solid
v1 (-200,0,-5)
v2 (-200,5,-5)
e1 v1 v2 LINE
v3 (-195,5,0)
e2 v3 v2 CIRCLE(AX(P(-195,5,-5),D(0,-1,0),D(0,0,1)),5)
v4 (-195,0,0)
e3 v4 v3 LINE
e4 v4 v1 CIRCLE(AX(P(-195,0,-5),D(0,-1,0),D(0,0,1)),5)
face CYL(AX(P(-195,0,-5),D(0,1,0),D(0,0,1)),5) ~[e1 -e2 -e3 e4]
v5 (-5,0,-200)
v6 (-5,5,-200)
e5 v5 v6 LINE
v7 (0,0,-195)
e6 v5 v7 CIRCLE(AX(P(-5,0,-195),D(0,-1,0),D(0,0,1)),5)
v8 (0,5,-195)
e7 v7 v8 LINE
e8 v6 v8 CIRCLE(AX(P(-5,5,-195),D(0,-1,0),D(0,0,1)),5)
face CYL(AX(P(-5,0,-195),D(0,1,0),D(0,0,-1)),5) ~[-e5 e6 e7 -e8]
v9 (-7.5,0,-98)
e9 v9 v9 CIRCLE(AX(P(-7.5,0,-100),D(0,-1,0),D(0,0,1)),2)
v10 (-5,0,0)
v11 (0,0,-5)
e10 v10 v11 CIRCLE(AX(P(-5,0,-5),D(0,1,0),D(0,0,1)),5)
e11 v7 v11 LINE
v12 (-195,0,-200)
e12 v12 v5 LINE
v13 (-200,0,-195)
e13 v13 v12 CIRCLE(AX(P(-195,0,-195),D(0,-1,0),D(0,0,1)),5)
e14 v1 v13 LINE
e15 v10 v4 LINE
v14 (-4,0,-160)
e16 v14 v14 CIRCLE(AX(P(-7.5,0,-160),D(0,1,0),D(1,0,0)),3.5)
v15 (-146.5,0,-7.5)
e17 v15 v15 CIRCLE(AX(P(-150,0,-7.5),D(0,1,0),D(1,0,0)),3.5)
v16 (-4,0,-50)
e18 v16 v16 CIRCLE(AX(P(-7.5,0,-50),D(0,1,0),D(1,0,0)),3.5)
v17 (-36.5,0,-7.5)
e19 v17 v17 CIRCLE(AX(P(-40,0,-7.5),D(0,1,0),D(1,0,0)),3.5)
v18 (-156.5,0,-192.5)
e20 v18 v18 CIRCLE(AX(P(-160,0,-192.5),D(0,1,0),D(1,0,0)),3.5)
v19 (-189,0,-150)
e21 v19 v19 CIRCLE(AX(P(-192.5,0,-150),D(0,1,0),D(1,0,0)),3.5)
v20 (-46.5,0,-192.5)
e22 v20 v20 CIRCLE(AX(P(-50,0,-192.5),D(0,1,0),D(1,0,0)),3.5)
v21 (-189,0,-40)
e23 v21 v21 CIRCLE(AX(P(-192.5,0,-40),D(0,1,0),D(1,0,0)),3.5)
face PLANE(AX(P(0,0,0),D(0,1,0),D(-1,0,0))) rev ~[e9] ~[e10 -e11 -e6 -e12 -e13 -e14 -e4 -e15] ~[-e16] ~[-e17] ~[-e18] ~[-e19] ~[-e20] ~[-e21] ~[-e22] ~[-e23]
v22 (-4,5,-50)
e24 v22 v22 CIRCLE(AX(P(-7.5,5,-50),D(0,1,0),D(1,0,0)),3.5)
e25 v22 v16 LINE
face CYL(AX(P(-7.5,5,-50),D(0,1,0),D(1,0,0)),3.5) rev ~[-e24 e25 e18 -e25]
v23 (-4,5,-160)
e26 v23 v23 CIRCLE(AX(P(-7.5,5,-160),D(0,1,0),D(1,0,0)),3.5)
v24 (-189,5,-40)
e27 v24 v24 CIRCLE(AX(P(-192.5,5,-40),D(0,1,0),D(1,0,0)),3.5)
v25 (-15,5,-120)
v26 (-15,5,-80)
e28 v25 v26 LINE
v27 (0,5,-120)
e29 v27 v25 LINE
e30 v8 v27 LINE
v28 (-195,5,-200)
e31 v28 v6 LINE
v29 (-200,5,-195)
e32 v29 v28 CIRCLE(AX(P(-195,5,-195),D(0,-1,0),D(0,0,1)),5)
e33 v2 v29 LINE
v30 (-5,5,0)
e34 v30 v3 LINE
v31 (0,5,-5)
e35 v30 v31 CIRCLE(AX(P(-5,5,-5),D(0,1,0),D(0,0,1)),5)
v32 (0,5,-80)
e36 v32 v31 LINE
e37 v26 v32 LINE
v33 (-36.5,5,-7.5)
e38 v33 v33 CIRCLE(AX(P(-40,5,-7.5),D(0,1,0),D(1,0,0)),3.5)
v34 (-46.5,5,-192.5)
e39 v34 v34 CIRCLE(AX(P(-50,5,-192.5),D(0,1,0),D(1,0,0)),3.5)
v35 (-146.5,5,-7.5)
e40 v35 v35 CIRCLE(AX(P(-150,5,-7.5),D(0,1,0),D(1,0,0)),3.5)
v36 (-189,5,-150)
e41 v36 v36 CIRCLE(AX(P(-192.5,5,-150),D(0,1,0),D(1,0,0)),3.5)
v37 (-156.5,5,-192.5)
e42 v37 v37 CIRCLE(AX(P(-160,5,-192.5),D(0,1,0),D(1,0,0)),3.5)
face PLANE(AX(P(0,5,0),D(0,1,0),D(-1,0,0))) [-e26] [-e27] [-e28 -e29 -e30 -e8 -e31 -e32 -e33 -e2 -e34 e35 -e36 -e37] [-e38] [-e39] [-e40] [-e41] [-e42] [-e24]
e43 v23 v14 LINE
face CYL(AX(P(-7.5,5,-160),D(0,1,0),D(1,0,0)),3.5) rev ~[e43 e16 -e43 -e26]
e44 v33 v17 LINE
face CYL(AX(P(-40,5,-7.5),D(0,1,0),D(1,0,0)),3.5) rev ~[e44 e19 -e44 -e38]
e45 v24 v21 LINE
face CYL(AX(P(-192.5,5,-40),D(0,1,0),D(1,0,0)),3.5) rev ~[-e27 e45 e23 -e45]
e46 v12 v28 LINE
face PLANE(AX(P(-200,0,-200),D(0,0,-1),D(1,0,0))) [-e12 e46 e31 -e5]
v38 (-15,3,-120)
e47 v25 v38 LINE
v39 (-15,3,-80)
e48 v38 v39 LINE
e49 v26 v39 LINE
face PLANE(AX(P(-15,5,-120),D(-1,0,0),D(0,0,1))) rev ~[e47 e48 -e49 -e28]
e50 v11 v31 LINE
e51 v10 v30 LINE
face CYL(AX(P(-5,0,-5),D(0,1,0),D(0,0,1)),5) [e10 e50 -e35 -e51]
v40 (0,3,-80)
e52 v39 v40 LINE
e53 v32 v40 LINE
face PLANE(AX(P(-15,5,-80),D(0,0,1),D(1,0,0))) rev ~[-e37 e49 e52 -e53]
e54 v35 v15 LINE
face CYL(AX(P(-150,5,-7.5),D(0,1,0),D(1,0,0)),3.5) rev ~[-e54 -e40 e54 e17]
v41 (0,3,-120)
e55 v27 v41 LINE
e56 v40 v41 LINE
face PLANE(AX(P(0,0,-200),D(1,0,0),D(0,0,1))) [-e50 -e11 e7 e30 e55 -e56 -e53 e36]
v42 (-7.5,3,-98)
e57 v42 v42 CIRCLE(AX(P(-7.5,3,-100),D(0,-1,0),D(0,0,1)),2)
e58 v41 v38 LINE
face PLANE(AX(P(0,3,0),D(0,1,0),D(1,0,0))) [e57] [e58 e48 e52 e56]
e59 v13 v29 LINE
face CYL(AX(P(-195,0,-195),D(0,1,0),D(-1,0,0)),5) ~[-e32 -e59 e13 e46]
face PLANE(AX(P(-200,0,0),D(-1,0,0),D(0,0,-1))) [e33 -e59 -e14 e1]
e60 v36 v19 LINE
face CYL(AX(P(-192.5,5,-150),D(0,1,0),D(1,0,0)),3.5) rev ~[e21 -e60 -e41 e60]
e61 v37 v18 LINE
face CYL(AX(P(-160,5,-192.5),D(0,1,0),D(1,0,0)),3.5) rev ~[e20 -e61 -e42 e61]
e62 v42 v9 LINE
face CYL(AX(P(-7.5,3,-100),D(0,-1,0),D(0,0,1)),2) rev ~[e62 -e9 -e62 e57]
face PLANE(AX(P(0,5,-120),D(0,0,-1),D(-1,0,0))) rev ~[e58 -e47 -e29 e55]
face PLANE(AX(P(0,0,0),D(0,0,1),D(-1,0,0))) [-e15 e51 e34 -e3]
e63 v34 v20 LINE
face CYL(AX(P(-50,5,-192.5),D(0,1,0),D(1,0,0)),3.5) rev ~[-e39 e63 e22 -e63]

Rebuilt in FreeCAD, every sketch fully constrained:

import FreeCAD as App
import Part
import Sketcher
Q = App.Units.Quantity


def edges_at(feature, points):
    """Names of the edges that pass closest to the given points."""
    edges = feature.Shape.Edges
    near = lambda p: min(range(len(edges)), key=lambda i: edges[i].distToShape(Part.Vertex(*p))[0])
    return sorted({f"Edge{near(p) + 1}" for p in points})

doc = App.newDocument("Part")
body = doc.addObject("PartDesign::Body", "Body")

sketch1 = doc.addObject("Sketcher::SketchObject", "Sketch")
body.addObject(sketch1)
sketch1.AttachmentSupport = (doc.XZ_Plane, [""])
sketch1.MapMode = "FlatFace"
sketch1.addGeometry([
    Part.LineSegment(App.Vector(-200, 0, 0), App.Vector(0, 0, 0)),
    Part.LineSegment(App.Vector(0, 0, 0), App.Vector(0, -200, 0)),
    Part.LineSegment(App.Vector(0, -200, 0), App.Vector(-200, -200, 0)),
    Part.LineSegment(App.Vector(-200, -200, 0), App.Vector(-200, 0, 0)),
], False)
sketch1.addConstraint([
    Sketcher.Constraint("Coincident", 0, 2, 1, 1),
    Sketcher.Constraint("Coincident", 1, 2, 2, 1),
    Sketcher.Constraint("Coincident", 2, 2, 3, 1),
    Sketcher.Constraint("Coincident", 3, 2, 0, 1),
    Sketcher.Constraint("Horizontal", 0),
    Sketcher.Constraint("Vertical", 1),
    Sketcher.Constraint("Horizontal", 2),
    Sketcher.Constraint("Vertical", 3),
    Sketcher.Constraint("Coincident", 0, 2, -1, 1),
    Sketcher.Constraint("Equal", 2, 1),
    Sketcher.Constraint("DistanceX", 0, 1, 0, 2, Q("200 mm")),
])
pad1 = doc.addObject("PartDesign::Pad", "Pad")
body.addObject(pad1)
pad1.Profile = sketch1
pad1.Length = 5
pad1.Reversed = True
doc.recompute()

fillet = doc.addObject("PartDesign::Fillet", "Fillet")
body.addObject(fillet)
fillet.Base = (pad1, edges_at(pad1, [
    (0, 2.5, 0),
    (0, 2.5, -200),
    (-200, 2.5, 0),
    (-200, 2.5, -200),
]))
fillet.Radius = 5

sketch2 = doc.addObject("Sketcher::SketchObject", "Sketch001")
body.addObject(sketch2)
sketch2.AttachmentSupport = (doc.XZ_Plane, [""])
sketch2.MapMode = "FlatFace"
sketch2.AttachmentOffset = App.Placement(App.Vector(0, 0, -5), App.Rotation())
sketch2.addGeometry([
    Part.Circle(App.Vector(-7.5, -50, 0), App.Vector(0, 0, 1), 3.5),
    Part.Circle(App.Vector(-40, -7.5, 0), App.Vector(0, 0, 1), 3.5),
    Part.Circle(App.Vector(-150, -7.5, 0), App.Vector(0, 0, 1), 3.5),
    Part.Circle(App.Vector(-192.5, -40, 0), App.Vector(0, 0, 1), 3.5),
    Part.Circle(App.Vector(-192.5, -150, 0), App.Vector(0, 0, 1), 3.5),
    Part.Circle(App.Vector(-160, -192.5, 0), App.Vector(0, 0, 1), 3.5),
    Part.Circle(App.Vector(-50, -192.5, 0), App.Vector(0, 0, 1), 3.5),
    Part.Circle(App.Vector(-7.5, -160, 0), App.Vector(0, 0, 1), 3.5),
], False)
sketch2.addConstraint([
    Sketcher.Constraint("Equal", 0, 1),
    Sketcher.Constraint("Equal", 1, 2),
    Sketcher.Constraint("Equal", 2, 3),
    Sketcher.Constraint("Equal", 3, 4),
    Sketcher.Constraint("Equal", 4, 5),
    Sketcher.Constraint("Equal", 5, 6),
    Sketcher.Constraint("Equal", 6, 7),
    Sketcher.Constraint("Horizontal", 1, 3, 2, 3),
    Sketcher.Constraint("Horizontal", 5, 3, 6, 3),
    Sketcher.Constraint("Vertical", 3, 3, 4, 3),
    Sketcher.Constraint("Vertical", 0, 3, 7, 3),
    Sketcher.Constraint("Diameter", 0, Q("7 mm")),
    Sketcher.Constraint("DistanceY", 0, 3, -1, 1, Q("50 mm")),
    Sketcher.Constraint("DistanceX", 1, 3, -1, 1, Q("40 mm")),
    Sketcher.Constraint("DistanceY", 3, 3, -1, 1, Q("40 mm")),
    Sketcher.Constraint("DistanceX", 6, 3, -1, 1, Q("50 mm")),
    Sketcher.Constraint("DistanceX", 0, 3, -1, 1, Q("7.5 mm")),
    Sketcher.Constraint("DistanceY", 1, 3, -1, 1, Q("7.5 mm")),
    Sketcher.Constraint("DistanceX", 2, 3, -1, 1, Q("150 mm")),
    Sketcher.Constraint("DistanceY", 4, 3, -1, 1, Q("150 mm")),
    Sketcher.Constraint("DistanceX", 5, 3, -1, 1, Q("160 mm")),
    Sketcher.Constraint("DistanceY", 7, 3, -1, 1, Q("160 mm")),
    Sketcher.Constraint("DistanceX", 3, 3, 0, 3, Q("185 mm")),
    Sketcher.Constraint("DistanceY", 5, 3, 2, 3, Q("185 mm")),
])
pocket1 = doc.addObject("PartDesign::Pocket", "Pocket")
body.addObject(pocket1)
pocket1.Profile = sketch2
pocket1.Type = "ThroughAll"
pocket1.Reversed = True

sketch3 = doc.addObject("Sketcher::SketchObject", "Sketch002")
body.addObject(sketch3)
sketch3.AttachmentSupport = (doc.XZ_Plane, [""])
sketch3.MapMode = "FlatFace"
sketch3.AttachmentOffset = App.Placement(App.Vector(0, 0, -5), App.Rotation())
sketch3.addGeometry([
    Part.LineSegment(App.Vector(0, -80, 0), App.Vector(0, -120, 0)),
    Part.LineSegment(App.Vector(0, -120, 0), App.Vector(-15, -120, 0)),
    Part.LineSegment(App.Vector(-15, -120, 0), App.Vector(-15, -80, 0)),
    Part.LineSegment(App.Vector(-15, -80, 0), App.Vector(0, -80, 0)),
], False)
sketch3.addConstraint([
    Sketcher.Constraint("Coincident", 0, 2, 1, 1),
    Sketcher.Constraint("Coincident", 1, 2, 2, 1),
    Sketcher.Constraint("Coincident", 2, 2, 3, 1),
    Sketcher.Constraint("Coincident", 3, 2, 0, 1),
    Sketcher.Constraint("Vertical", 0),
    Sketcher.Constraint("Horizontal", 1),
    Sketcher.Constraint("Vertical", 2),
    Sketcher.Constraint("Horizontal", 3),
    Sketcher.Constraint("PointOnObject", 0, 2, -2),
    Sketcher.Constraint("DistanceX", 1, 2, 1, 1, Q("15 mm")),
    Sketcher.Constraint("DistanceY", 2, 2, -1, 1, Q("80 mm")),
    Sketcher.Constraint("DistanceY", 0, 2, 0, 1, Q("40 mm")),
])
pocket2 = doc.addObject("PartDesign::Pocket", "Pocket001")
body.addObject(pocket2)
pocket2.Profile = sketch3
pocket2.Length = 2
pocket2.Reversed = True

sketch4 = doc.addObject("Sketcher::SketchObject", "Sketch003")
body.addObject(sketch4)
sketch4.AttachmentSupport = (doc.XZ_Plane, [""])
sketch4.MapMode = "FlatFace"
sketch4.AttachmentOffset = App.Placement(App.Vector(0, 0, -3), App.Rotation())
sketch4.addGeometry(Part.Circle(App.Vector(-7.5, -100, 0), App.Vector(0, 0, 1), 2), False)
sketch4.addConstraint([
    Sketcher.Constraint("Diameter", 0, Q("4 mm")),
    Sketcher.Constraint("DistanceY", 0, 3, -1, 1, Q("100 mm")),
    Sketcher.Constraint("DistanceX", 0, 3, -1, 1, Q("7.5 mm")),
])
doc.recompute()
hole = doc.addObject("PartDesign::Hole", "Hole")
body.addObject(hole)
hole.Profile = sketch4
hole.ThreadType = "None"
hole.Diameter = 4
hole.DepthType = "ThroughAll"
hole.Reversed = True

doc.recompute()
